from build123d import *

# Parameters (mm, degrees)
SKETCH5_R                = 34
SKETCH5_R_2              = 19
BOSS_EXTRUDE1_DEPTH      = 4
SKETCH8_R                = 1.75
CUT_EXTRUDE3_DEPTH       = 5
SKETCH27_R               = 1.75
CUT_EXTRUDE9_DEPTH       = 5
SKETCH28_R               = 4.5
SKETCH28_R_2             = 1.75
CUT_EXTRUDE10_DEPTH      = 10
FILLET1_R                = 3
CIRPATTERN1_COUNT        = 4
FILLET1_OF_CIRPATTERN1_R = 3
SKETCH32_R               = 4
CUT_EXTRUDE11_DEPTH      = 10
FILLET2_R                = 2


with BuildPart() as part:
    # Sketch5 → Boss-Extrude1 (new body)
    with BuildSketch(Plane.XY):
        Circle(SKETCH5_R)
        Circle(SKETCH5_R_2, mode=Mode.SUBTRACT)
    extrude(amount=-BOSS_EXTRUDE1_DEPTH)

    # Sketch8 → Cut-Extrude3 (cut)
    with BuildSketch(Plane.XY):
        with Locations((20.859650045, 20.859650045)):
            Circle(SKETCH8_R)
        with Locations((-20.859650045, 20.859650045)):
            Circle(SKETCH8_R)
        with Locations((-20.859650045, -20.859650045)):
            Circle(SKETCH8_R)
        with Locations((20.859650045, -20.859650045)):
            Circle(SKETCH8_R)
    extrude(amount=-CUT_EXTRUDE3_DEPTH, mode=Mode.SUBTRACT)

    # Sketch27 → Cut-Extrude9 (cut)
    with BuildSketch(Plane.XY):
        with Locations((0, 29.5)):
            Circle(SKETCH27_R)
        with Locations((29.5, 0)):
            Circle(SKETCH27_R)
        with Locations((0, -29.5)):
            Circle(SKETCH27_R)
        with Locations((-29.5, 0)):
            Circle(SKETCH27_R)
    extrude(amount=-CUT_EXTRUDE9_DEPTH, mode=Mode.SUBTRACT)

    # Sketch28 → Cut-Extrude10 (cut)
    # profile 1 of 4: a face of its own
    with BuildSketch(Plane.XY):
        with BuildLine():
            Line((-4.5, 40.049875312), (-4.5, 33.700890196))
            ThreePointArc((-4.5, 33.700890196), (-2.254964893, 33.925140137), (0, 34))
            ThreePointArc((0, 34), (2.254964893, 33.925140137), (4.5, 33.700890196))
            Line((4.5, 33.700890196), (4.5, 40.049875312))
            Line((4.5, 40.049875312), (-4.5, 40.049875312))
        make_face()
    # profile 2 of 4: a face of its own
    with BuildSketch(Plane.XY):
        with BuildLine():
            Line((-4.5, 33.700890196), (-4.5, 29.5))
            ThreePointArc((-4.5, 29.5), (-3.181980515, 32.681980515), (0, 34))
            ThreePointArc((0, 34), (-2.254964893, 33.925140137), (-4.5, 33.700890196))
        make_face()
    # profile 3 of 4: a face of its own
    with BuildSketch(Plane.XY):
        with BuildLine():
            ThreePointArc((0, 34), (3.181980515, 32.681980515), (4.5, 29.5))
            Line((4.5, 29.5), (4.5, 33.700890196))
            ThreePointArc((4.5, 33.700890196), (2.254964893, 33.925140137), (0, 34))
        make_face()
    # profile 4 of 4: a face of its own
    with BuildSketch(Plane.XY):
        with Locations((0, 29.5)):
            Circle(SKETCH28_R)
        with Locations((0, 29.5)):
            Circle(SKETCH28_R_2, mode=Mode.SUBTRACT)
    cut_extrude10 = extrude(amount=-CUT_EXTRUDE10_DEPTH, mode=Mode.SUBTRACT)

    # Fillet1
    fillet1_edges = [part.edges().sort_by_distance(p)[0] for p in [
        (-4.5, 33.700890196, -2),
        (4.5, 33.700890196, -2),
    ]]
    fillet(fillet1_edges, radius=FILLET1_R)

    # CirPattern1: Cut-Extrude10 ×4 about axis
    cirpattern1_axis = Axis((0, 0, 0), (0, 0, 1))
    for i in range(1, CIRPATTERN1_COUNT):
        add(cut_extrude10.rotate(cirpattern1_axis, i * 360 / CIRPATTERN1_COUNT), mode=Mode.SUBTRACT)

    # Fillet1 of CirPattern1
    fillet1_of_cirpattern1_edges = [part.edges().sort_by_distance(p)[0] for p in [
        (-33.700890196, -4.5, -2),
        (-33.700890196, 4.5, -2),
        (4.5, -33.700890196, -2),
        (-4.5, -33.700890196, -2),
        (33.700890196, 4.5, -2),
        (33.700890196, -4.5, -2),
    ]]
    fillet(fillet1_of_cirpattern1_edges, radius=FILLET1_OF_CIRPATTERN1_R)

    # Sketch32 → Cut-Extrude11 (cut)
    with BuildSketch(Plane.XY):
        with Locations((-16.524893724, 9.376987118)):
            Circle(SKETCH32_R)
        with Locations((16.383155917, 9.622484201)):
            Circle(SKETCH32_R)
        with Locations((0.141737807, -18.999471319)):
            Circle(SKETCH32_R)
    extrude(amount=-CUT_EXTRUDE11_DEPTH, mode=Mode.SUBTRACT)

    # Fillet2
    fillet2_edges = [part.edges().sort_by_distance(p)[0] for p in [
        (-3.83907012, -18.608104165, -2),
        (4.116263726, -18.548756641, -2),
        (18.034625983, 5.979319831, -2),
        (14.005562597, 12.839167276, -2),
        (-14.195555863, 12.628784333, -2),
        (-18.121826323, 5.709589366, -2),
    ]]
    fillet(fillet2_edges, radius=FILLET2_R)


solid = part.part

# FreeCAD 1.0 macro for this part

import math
import FreeCAD as App
import Part
import Sketcher
from FreeCAD import Vector
Q = App.Units.Quantity


def edges_at(feature, points):
    """Names of the edges that pass closest to the given points."""
    edges = feature.Shape.Edges
    near = lambda p: min(range(len(edges)), key=lambda i: edges[i].distToShape(Part.Vertex(*p))[0])
    return sorted({f"Edge{near(p) + 1}" for p in points})

doc = App.newDocument("Part")
params = doc.addObject("Spreadsheet::Sheet", "Params")
for row, (alias, value) in enumerate([
    ("sketch1_diameter", "68 mm"),
    ("sketch1_diameter2", "38 mm"),
    ("pad1_length", "4 mm"),
    ("sketch2_diameter", "3.5 mm"),
    ("pocket1_length", "5 mm"),
    ("sketch3_diameter", "3.5 mm"),
    ("pocket2_length", "5 mm"),
    ("sketch4_diameter", "3.5 mm"),
    ("sketch4_radius", "4.5 mm"),
    ("pocket3_length", "10 mm"),
    ("fillet_radius", "3 mm"),
    ("fillet2_radius", "3 mm"),
    ("sketch5_diameter", "8 mm"),
    ("pocket4_length", "10 mm"),
    ("fillet3_radius", "2 mm"),
], start=1):
    params.set(f"A{row}", alias)
    params.set(f"B{row}", "=" + value)
    params.setAlias(f"B{row}", alias)

body = doc.addObject("PartDesign::Body", "Body")

# Sketch on XY plane
sketch1 = body.newObject("Sketcher::SketchObject", "Sketch")
sketch1.AttachmentSupport = (doc.getObject("XY_Plane"), [""])
sketch1.MapMode = "FlatFace"
sketch1.addGeometry(Part.Circle(Vector(0, 0, 0), Vector(0, 0, 1), 34), False)
sketch1.addGeometry(Part.Circle(Vector(0, 0, 0), Vector(0, 0, 1), 19), False)
sketch1.addConstraint(Sketcher.Constraint("Coincident", 0, 3, -1, 1))
sketch1.addConstraint(Sketcher.Constraint("Coincident", 1, 3, -1, 1))
sketch1.addConstraint(Sketcher.Constraint("Diameter", 0, Q("68 mm")))
sketch1.addConstraint(Sketcher.Constraint("Diameter", 1, Q("38 mm")))
sketch1.setExpression("Constraints[2]", "Params.sketch1_diameter")
sketch1.setExpression("Constraints[3]", "Params.sketch1_diameter2")
pad1 = body.newObject("PartDesign::Pad", "Pad")
pad1.Profile = sketch1
pad1.setExpression("Length", "Params.pad1_length")
pad1.Reversed = True

# Sketch on XY plane
sketch2 = body.newObject("Sketcher::SketchObject", "Sketch001")
sketch2.AttachmentSupport = (doc.getObject("XY_Plane"), [""])
sketch2.MapMode = "FlatFace"
sketch2.addGeometry(Part.Circle(Vector(20.9, 20.9, 0), Vector(0, 0, 1), 1.8), False)
sketch2.addGeometry(Part.Circle(Vector(-20.9, 20.9, 0), Vector(0, 0, 1), 1.8), False)
sketch2.addGeometry(Part.Circle(Vector(-20.9, -20.9, 0), Vector(0, 0, 1), 1.8), False)
sketch2.addGeometry(Part.Circle(Vector(20.9, -20.9, 0), Vector(0, 0, 1), 1.8), False)
sketch2.addConstraint(Sketcher.Constraint("Equal", 0, 1))
sketch2.addConstraint(Sketcher.Constraint("Equal", 1, 2))
sketch2.addConstraint(Sketcher.Constraint("Equal", 2, 3))
sketch2.addConstraint(Sketcher.Constraint("Symmetric", 0, 3, 2, 3, -1, 1))
sketch2.addConstraint(Sketcher.Constraint("Symmetric", 1, 3, 3, 3, -1, 1))
sketch2.addConstraint(Sketcher.Constraint("Symmetric", 0, 3, 1, 3, -2))
sketch2.addConstraint(Sketcher.Constraint("Diameter", 0, Q("3.5 mm")))
sketch2.addConstraint(Sketcher.Constraint("DistanceX", 1, 3, 0, 3, Q("41.7193 mm")))
sketch2.addConstraint(Sketcher.Constraint("DistanceY", 2, 3, 1, 3, Q("41.7193 mm")))
sketch2.setExpression("Constraints[6]", "Params.sketch2_diameter")
pocket1 = body.newObject("PartDesign::Pocket", "Pocket")
pocket1.Profile = sketch2
pocket1.setExpression("Length", "Params.pocket1_length")

# Sketch on XY plane
sketch3 = body.newObject("Sketcher::SketchObject", "Sketch002")
sketch3.AttachmentSupport = (doc.getObject("XY_Plane"), [""])
sketch3.MapMode = "FlatFace"
sketch3.addGeometry(Part.Circle(Vector(0, 29.5, 0), Vector(0, 0, 1), 1.8), False)
sketch3.addGeometry(Part.Circle(Vector(29.5, 0, 0), Vector(0, 0, 1), 1.8), False)
sketch3.addGeometry(Part.Circle(Vector(0, -29.5, 0), Vector(0, 0, 1), 1.8), False)
sketch3.addGeometry(Part.Circle(Vector(-29.5, 0, 0), Vector(0, 0, 1), 1.8), False)
sketch3.addConstraint(Sketcher.Constraint("Equal", 0, 1))
sketch3.addConstraint(Sketcher.Constraint("Equal", 1, 2))
sketch3.addConstraint(Sketcher.Constraint("Equal", 2, 3))
sketch3.addConstraint(Sketcher.Constraint("Symmetric", 0, 3, 2, 3, -1, 1))
sketch3.addConstraint(Sketcher.Constraint("Symmetric", 1, 3, 3, 3, -1, 1))
sketch3.addConstraint(Sketcher.Constraint("PointOnObject", 0, 3, -2))
sketch3.addConstraint(Sketcher.Constraint("PointOnObject", 1, 3, -1))
sketch3.addConstraint(Sketcher.Constraint("Diameter", 0, Q("3.5 mm")))
sketch3.addConstraint(Sketcher.Constraint("DistanceY", 2, 3, 0, 3, Q("59 mm")))
sketch3.addConstraint(Sketcher.Constraint("DistanceX", 3, 3, 1, 3, Q("59 mm")))
sketch3.setExpression("Constraints[7]", "Params.sketch3_diameter")
pocket2 = body.newObject("PartDesign::Pocket", "Pocket001")
pocket2.Profile = sketch3
pocket2.setExpression("Length", "Params.pocket2_length")

# Sketch on XY plane
sketch4 = body.newObject("Sketcher::SketchObject", "Sketch003")
sketch4.AttachmentSupport = (doc.getObject("XY_Plane"), [""])
sketch4.MapMode = "FlatFace"
sketch4.addGeometry(Part.LineSegment(Vector(-4.5, 40, 0), Vector(-4.5, 29.5, 0)), False)
sketch4.addGeometry(Part.ArcOfCircle(Part.Circle(Vector(0, 29.5, 0), Vector(0, 0, 1), 4.5), math.radians(180), math.radians(360)), False)
sketch4.addGeometry(Part.LineSegment(Vector(4.5, 29.5, 0), Vector(4.5, 40, 0)), False)
sketch4.addGeometry(Part.LineSegment(Vector(4.5, 40, 0), Vector(-4.5, 40, 0)), False)
sketch4.addGeometry(Part.Circle(Vector(0, 29.5, 0), Vector(0, 0, 1), 1.8), False)
sketch4.addConstraint(Sketcher.Constraint("Tangent", 0, 2, 1, 1))
sketch4.addConstraint(Sketcher.Constraint("Tangent", 1, 2, 2, 1))
sketch4.addConstraint(Sketcher.Constraint("Coincident", 2, 2, 3, 1))
sketch4.addConstraint(Sketcher.Constraint("Coincident", 3, 2, 0, 1))
sketch4.addConstraint(Sketcher.Constraint("Vertical", 0))
sketch4.addConstraint(Sketcher.Constraint("Vertical", 2))
sketch4.addConstraint(Sketcher.Constraint("Horizontal", 3))
sketch4.addConstraint(Sketcher.Constraint("Coincident", 4, 3, 1, 3))
sketch4.addConstraint(Sketcher.Constraint("PointOnObject", 1, 3, -2))
sketch4.addConstraint(Sketcher.Constraint("Diameter", 4, Q("3.5 mm")))
sketch4.addConstraint(Sketcher.Constraint("Radius", 1, Q("4.5 mm")))
sketch4.addConstraint(Sketcher.Constraint("DistanceY", -1, 1, 1, 3, Q("29.5 mm")))
sketch4.addConstraint(Sketcher.Constraint("DistanceY", 0, 2, 0, 1, Q("10.549875 mm")))
sketch4.setExpression("Constraints[9]", "Params.sketch4_diameter")
sketch4.setExpression("Constraints[10]", "Params.sketch4_radius")
pocket3 = body.newObject("PartDesign::Pocket", "Pocket002")
pocket3.Profile = sketch4
pocket3.setExpression("Length", "Params.pocket3_length")
doc.recompute()

fillet = body.newObject("PartDesign::Fillet", "Fillet")
fillet.Base = (pocket3, edges_at(pocket3, [(-4.5, 33.701, -2), (4.5, 33.701, -2)]))
fillet.setExpression("Radius", "Params.fillet_radius")
doc.recompute()

polarpattern = body.newObject("PartDesign::PolarPattern", "PolarPattern")
polarpattern.Originals = [pocket3]
polarpattern.Axis = (doc.getObject("Z_Axis"), [""])
polarpattern.Angle = 360
polarpattern.Occurrences = 4
body.Tip = polarpattern
doc.recompute()

fillet2 = body.newObject("PartDesign::Fillet", "Fillet001")
fillet2.Base = (polarpattern, edges_at(polarpattern, [
    (-33.701, -4.5, -2),
    (-33.701, 4.5, -2),
    (4.5, -33.701, -2),
    (-4.5, -33.701, -2),
    (33.701, 4.5, -2),
    (33.701, -4.5, -2),
]))
fillet2.setExpression("Radius", "Params.fillet2_radius")

# Sketch on XY plane
sketch5 = body.newObject("Sketcher::SketchObject", "Sketch004")
sketch5.AttachmentSupport = (doc.getObject("XY_Plane"), [""])
sketch5.MapMode = "FlatFace"
sketch5.addGeometry(Part.Circle(Vector(-16.5, 9.4, 0), Vector(0, 0, 1), 4), False)
sketch5.addGeometry(Part.Circle(Vector(16.4, 9.6, 0), Vector(0, 0, 1), 4), False)
sketch5.addGeometry(Part.Circle(Vector(0.1, -19, 0), Vector(0, 0, 1), 4), False)
sketch5.addConstraint(Sketcher.Constraint("Equal", 0, 1))
sketch5.addConstraint(Sketcher.Constraint("Equal", 1, 2))
sketch5.addConstraint(Sketcher.Constraint("Diameter", 0, Q("8 mm")))
sketch5.addConstraint(Sketcher.Constraint("DistanceY", 2, 3, -1, 1, Q("18.999471 mm")))
sketch5.addConstraint(Sketcher.Constraint("DistanceX", 0, 3, 1, 3, Q("32.90805 mm")))
sketch5.addConstraint(Sketcher.Constraint("DistanceX", 2, 3, 1, 3, Q("16.241418 mm")))
sketch5.addConstraint(Sketcher.Constraint("DistanceY", 2, 3, 0, 3, Q("28.376458 mm")))
sketch5.addConstraint(Sketcher.Constraint("DistanceX", 0, 3, -1, 1, Q("16.524894 mm")))
sketch5.addConstraint(Sketcher.Constraint("DistanceY", -1, 1, 1, 3, Q("9.622484 mm")))
sketch5.setExpression("Constraints[2]", "Params.sketch5_diameter")
pocket4 = body.newObject("PartDesign::Pocket", "Pocket003")
pocket4.Profile = sketch5
pocket4.setExpression("Length", "Params.pocket4_length")
doc.recompute()

fillet3 = body.newObject("PartDesign::Fillet", "Fillet002")
fillet3.Base = (pocket4, edges_at(pocket4, [
    (-3.839, -18.608, -2),
    (4.116, -18.549, -2),
    (18.035, 5.979, -2),
    (14.006, 12.839, -2),
    (-14.196, 12.629, -2),
    (-18.122, 5.71, -2),
]))
fillet3.setExpression("Radius", "Params.fillet3_radius")

doc.recompute()
